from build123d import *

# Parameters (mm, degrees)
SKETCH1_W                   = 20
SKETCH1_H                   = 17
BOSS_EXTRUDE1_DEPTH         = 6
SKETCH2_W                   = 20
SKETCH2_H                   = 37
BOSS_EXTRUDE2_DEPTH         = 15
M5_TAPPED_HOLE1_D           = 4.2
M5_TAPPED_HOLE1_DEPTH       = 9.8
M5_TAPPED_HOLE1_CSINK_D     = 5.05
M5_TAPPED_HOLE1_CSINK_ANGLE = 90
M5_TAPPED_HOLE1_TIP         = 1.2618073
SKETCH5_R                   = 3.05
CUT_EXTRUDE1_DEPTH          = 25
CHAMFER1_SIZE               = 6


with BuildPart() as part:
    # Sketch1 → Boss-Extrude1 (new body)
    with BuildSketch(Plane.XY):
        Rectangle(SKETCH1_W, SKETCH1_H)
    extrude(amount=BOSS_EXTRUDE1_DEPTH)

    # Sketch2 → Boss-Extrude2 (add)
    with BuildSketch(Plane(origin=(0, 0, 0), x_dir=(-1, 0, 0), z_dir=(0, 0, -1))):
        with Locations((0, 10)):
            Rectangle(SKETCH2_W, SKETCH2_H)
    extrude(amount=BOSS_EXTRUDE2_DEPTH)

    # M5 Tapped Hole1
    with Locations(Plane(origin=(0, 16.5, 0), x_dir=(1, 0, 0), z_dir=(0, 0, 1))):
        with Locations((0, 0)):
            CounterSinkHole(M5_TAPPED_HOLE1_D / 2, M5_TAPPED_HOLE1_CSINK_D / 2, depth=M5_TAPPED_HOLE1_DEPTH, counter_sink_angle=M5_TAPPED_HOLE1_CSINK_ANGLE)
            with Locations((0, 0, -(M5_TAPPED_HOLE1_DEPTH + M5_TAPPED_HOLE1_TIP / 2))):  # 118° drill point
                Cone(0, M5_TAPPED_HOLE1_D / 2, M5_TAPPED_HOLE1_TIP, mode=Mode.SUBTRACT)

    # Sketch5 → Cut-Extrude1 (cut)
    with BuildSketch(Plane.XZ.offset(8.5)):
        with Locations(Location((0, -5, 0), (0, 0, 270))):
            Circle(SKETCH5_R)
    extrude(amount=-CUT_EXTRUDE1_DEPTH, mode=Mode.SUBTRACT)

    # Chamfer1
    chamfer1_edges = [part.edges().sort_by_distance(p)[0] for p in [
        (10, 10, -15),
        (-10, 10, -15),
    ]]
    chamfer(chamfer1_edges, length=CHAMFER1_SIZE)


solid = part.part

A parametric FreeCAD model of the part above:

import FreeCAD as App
import Part
import Sketcher

V = App.Vector


def edges_at(feature, points):
    """Names of the edges that pass closest to the given points."""
    edges = feature.Shape.Edges
    near = lambda p: min(range(len(edges)), key=lambda i: edges[i].distToShape(Part.Vertex(*p))[0])
    return sorted({f"Edge{near(p) + 1}" for p in points})


def add_polygon(sketch, points):
    """Adds a closed chain of lines whose ends are joined by coincident constraints."""
    first, n = sketch.GeometryCount, len(points)
    for a, b in zip(points, points[1:] + points[:1]):
        sketch.addGeometry(Part.LineSegment(App.Vector(*a, 0), App.Vector(*b, 0)), False)
    for i in range(n):
        sketch.addConstraint(Sketcher.Constraint("Coincident", first + i, 2, first + (i + 1) % n, 1))

doc = App.newDocument("Part")
body = doc.addObject("PartDesign::Body", "Body")

# Sketch on XY plane
sketch1 = body.newObject("Sketcher::SketchObject", "Sketch")
sketch1.AttachmentSupport = (doc.getObject("XY_Plane"), [""])
sketch1.MapMode = "FlatFace"
add_polygon(sketch1, [(-10, 8), (-10, -8), (10, -8), (10, 8)])  # lines 0-3
sketch1.addConstraint(Sketcher.Constraint("Vertical", 0))
sketch1.addConstraint(Sketcher.Constraint("Horizontal", 1))
sketch1.addConstraint(Sketcher.Constraint("Vertical", 2))
sketch1.addConstraint(Sketcher.Constraint("Horizontal", 3))
sketch1.addConstraint(Sketcher.Constraint("Symmetric", 0, 2, 2, 2, -1, 1))
sketch1.addConstraint(Sketcher.Constraint("DistanceX", 1, 1, 1, 2, 20.0))
sketch1.addConstraint(Sketcher.Constraint("DistanceY", 0, 2, 0, 1, 17.0))
pad1 = body.newObject("PartDesign::Pad", "Pad")
pad1.Profile = sketch1
pad1.Length = 6

# Sketch on XY plane
sketch2 = body.newObject("Sketcher::SketchObject", "Sketch001")
sketch2.AttachmentSupport = (doc.getObject("XY_Plane"), [""])
sketch2.MapMode = "FlatFace"
add_polygon(sketch2, [(10, 28), (10, -8), (-10, -8), (-10, 28)])  # lines 0-3
sketch2.addConstraint(Sketcher.Constraint("Vertical", 0))
sketch2.addConstraint(Sketcher.Constraint("Horizontal", 1))
sketch2.addConstraint(Sketcher.Constraint("Vertical", 2))
sketch2.addConstraint(Sketcher.Constraint("Horizontal", 3))
sketch2.addConstraint(Sketcher.Constraint("DistanceX", 1, 2, 1, 1, 20.0))
sketch2.addConstraint(Sketcher.Constraint("DistanceY", 0, 2, 0, 1, 37.0))
sketch2.addConstraint(Sketcher.Constraint("DistanceX", -1, 1, 0, 2, 10.0))
sketch2.addConstraint(Sketcher.Constraint("DistanceY", 0, 2, -1, 1, 8.5))
pad2 = body.newObject("PartDesign::Pad", "Pad001")
pad2.Profile = sketch2
pad2.Length = 15
pad2.Reversed = True

# Sketch on XY plane
sketch3 = body.newObject("Sketcher::SketchObject", "Sketch002")
sketch3.AttachmentSupport = (doc.getObject("XY_Plane"), [""])
sketch3.MapMode = "FlatFace"
sketch3.addGeometry(Part.Circle(V(0, 16.5, 0), V(0, 0, 1), 2.1), False)
sketch3.addConstraint(Sketcher.Constraint("PointOnObject", 0, 3, -2))
sketch3.addConstraint(Sketcher.Constraint("Diameter", 0, 4.2))
sketch3.addConstraint(Sketcher.Constraint("DistanceY", -1, 1, 0, 3, 16.5))
doc.recompute()
hole = body.newObject("PartDesign::Hole", "Hole")
hole.Profile = sketch3
hole.ThreadType = "None"
hole.Diameter = 4.2
hole.DepthType = "Dimension"
hole.Depth = 9.8
hole.DrillPoint = "Angled"
hole.DrillPointAngle = 118
hole.HoleCutType = "Countersink"
hole.HoleCutDiameter = 5.05
hole.HoleCutCountersinkAngle = 90

# Sketch on XZ plane
sketch4 = body.newObject("Sketcher::SketchObject", "Sketch003")
sketch4.AttachmentSupport = (doc.getObject("XZ_Plane"), [""])
sketch4.MapMode = "FlatFace"
sketch4.AttachmentOffset = App.Placement(V(0, 0, 8.5), App.Rotation())
sketch4.addGeometry(Part.Circle(V(0, -5, 0), V(0, 0, 1), 3), False)
sketch4.addConstraint(Sketcher.Constraint("PointOnObject", 0, 3, -2))
sketch4.addConstraint(Sketcher.Constraint("Diameter", 0, 6.1))
sketch4.addConstraint(Sketcher.Constraint("DistanceY", 0, 3, -1, 1, 5.0))
pocket1 = body.newObject("PartDesign::Pocket", "Pocket")
pocket1.Profile = sketch4
pocket1.Length = 25
doc.recompute()

chamfer = body.newObject("PartDesign::Chamfer", "Chamfer")
chamfer.Base = (pocket1, edges_at(pocket1, [(10, 10, -15), (-10, 10, -15)]))
chamfer.Size = 6

doc.recompute()
